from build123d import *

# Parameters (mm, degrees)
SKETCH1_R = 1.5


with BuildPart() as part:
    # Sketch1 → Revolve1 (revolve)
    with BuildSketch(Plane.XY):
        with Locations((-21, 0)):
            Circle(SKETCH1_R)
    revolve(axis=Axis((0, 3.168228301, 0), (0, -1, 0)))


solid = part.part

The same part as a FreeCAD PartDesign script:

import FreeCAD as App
import Part
import Sketcher

V = App.Vector
Q = App.Units.Quantity

doc = App.newDocument("Part")
body = doc.addObject("PartDesign::Body", "Body")

sketch1 = body.newObject("Sketcher::SketchObject", "Sketch")
sketch1.AttachmentSupport = (doc.getObject("XY_Plane"), [""])
sketch1.MapMode = "FlatFace"
sketch1.addGeometry(Part.Circle(V(-21, 0, 0), V(0, 0, 1), 1.5), False)
sketch1.addConstraint([
    Sketcher.Constraint("PointOnObject", 0, 3, -1),
    Sketcher.Constraint("Diameter", 0, Q("3 mm")),
    Sketcher.Constraint("DistanceX", 0, 3, -1, 1, Q("21 mm")),
])
revolution = body.newObject("PartDesign::Revolution", "Revolution")
revolution.Profile = sketch1
revolution.ReferenceAxis = (sketch1, ["V_Axis"])
revolution.Angle = 360

doc.recompute()
